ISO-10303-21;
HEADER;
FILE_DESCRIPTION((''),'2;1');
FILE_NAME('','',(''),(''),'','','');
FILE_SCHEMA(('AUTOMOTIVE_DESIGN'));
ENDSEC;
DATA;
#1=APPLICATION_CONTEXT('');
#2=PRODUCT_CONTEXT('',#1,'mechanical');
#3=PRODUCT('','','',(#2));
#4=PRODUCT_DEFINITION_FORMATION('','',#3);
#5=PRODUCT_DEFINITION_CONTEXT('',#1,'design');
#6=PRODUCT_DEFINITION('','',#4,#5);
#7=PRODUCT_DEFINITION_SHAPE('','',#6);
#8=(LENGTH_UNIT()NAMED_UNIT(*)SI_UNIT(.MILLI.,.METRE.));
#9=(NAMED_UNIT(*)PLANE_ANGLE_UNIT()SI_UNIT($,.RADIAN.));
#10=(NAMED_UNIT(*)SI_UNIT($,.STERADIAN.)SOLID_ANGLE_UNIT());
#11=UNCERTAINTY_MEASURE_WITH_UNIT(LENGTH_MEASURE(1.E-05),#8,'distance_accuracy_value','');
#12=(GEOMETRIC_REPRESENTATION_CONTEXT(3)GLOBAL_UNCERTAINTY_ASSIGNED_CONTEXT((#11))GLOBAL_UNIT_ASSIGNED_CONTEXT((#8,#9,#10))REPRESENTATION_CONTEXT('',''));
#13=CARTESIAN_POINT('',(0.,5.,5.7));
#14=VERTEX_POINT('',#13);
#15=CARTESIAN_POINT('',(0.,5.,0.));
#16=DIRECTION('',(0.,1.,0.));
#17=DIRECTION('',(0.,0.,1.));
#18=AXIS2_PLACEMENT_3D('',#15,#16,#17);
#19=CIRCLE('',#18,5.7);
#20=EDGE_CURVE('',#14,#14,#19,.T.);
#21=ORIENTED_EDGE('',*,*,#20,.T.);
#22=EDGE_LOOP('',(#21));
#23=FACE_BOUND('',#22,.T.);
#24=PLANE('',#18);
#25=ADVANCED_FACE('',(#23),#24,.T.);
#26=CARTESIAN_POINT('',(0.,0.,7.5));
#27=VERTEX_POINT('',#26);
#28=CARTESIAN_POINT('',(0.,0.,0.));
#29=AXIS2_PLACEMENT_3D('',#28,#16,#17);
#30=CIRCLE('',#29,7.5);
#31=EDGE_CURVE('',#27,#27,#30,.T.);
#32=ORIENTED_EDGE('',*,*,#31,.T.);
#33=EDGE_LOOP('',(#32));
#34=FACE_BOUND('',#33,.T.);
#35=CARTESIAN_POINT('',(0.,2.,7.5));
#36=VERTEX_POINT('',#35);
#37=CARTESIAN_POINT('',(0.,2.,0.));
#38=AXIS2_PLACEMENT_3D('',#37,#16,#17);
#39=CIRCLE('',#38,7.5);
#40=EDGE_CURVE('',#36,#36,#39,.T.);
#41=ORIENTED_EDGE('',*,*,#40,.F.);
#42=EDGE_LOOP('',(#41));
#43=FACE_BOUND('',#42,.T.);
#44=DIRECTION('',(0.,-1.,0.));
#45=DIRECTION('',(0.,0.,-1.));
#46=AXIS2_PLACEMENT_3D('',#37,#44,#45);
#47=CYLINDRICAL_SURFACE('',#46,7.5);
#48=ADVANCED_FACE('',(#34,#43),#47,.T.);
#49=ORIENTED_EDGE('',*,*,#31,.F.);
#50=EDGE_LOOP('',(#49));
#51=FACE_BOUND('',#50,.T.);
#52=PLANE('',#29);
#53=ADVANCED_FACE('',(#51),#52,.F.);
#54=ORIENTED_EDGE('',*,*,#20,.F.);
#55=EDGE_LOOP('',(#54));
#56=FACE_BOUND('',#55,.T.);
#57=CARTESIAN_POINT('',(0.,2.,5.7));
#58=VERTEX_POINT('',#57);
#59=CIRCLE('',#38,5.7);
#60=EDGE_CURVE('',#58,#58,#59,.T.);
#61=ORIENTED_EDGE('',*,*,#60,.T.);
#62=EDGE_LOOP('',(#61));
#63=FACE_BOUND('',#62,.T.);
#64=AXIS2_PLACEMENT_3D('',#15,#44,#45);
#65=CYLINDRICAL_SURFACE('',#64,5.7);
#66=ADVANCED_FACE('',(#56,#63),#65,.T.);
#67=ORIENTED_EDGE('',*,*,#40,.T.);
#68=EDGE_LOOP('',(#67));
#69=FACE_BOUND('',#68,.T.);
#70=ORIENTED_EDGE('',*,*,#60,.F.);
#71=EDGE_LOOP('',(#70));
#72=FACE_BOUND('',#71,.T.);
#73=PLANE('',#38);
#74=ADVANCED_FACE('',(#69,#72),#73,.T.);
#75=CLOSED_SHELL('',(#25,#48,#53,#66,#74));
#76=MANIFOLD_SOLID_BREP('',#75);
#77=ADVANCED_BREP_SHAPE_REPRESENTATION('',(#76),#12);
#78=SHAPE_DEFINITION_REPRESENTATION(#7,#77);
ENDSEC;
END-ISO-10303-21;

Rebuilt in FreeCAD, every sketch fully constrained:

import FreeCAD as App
import Part
import Sketcher
from FreeCAD import Vector

doc = App.newDocument("Part")
body = doc.addObject("PartDesign::Body", "Body")

# Sketch on XZ plane
sketch1 = doc.addObject("Sketcher::SketchObject", "Sketch")
body.addObject(sketch1)
sketch1.AttachmentSupport = (doc.XZ_Plane, [""])
sketch1.MapMode = "FlatFace"
sketch1.addGeometry(Part.Circle(Vector(0, 0, 0), Vector(0, 0, 1), 8), False)
sketch1.addConstraint([
    Sketcher.Constraint("Coincident", 0, 3, -1, 1),
    Sketcher.Constraint("Diameter", 0, 15.0),
])
pad1 = doc.addObject("PartDesign::Pad", "Pad")
body.addObject(pad1)
pad1.Profile = sketch1
pad1.Length = 2
pad1.Reversed = True

# Sketch on XZ plane
sketch2 = doc.addObject("Sketcher::SketchObject", "Sketch001")
body.addObject(sketch2)
sketch2.AttachmentSupport = (doc.XZ_Plane, [""])
sketch2.MapMode = "FlatFace"
sketch2.AttachmentOffset = App.Placement(Vector(0, 0, -2), App.Rotation())
sketch2.addGeometry(Part.Circle(Vector(0, 0, 0), Vector(0, 0, 1), 6), False)
sketch2.addConstraint([
    Sketcher.Constraint("Coincident", 0, 3, -1, 1),
    Sketcher.Constraint("Diameter", 0, 11.4),
])
pad2 = doc.addObject("PartDesign::Pad", "Pad001")
body.addObject(pad2)
pad2.Profile = sketch2
pad2.Length = 3
pad2.Reversed = True

doc.recompute()
